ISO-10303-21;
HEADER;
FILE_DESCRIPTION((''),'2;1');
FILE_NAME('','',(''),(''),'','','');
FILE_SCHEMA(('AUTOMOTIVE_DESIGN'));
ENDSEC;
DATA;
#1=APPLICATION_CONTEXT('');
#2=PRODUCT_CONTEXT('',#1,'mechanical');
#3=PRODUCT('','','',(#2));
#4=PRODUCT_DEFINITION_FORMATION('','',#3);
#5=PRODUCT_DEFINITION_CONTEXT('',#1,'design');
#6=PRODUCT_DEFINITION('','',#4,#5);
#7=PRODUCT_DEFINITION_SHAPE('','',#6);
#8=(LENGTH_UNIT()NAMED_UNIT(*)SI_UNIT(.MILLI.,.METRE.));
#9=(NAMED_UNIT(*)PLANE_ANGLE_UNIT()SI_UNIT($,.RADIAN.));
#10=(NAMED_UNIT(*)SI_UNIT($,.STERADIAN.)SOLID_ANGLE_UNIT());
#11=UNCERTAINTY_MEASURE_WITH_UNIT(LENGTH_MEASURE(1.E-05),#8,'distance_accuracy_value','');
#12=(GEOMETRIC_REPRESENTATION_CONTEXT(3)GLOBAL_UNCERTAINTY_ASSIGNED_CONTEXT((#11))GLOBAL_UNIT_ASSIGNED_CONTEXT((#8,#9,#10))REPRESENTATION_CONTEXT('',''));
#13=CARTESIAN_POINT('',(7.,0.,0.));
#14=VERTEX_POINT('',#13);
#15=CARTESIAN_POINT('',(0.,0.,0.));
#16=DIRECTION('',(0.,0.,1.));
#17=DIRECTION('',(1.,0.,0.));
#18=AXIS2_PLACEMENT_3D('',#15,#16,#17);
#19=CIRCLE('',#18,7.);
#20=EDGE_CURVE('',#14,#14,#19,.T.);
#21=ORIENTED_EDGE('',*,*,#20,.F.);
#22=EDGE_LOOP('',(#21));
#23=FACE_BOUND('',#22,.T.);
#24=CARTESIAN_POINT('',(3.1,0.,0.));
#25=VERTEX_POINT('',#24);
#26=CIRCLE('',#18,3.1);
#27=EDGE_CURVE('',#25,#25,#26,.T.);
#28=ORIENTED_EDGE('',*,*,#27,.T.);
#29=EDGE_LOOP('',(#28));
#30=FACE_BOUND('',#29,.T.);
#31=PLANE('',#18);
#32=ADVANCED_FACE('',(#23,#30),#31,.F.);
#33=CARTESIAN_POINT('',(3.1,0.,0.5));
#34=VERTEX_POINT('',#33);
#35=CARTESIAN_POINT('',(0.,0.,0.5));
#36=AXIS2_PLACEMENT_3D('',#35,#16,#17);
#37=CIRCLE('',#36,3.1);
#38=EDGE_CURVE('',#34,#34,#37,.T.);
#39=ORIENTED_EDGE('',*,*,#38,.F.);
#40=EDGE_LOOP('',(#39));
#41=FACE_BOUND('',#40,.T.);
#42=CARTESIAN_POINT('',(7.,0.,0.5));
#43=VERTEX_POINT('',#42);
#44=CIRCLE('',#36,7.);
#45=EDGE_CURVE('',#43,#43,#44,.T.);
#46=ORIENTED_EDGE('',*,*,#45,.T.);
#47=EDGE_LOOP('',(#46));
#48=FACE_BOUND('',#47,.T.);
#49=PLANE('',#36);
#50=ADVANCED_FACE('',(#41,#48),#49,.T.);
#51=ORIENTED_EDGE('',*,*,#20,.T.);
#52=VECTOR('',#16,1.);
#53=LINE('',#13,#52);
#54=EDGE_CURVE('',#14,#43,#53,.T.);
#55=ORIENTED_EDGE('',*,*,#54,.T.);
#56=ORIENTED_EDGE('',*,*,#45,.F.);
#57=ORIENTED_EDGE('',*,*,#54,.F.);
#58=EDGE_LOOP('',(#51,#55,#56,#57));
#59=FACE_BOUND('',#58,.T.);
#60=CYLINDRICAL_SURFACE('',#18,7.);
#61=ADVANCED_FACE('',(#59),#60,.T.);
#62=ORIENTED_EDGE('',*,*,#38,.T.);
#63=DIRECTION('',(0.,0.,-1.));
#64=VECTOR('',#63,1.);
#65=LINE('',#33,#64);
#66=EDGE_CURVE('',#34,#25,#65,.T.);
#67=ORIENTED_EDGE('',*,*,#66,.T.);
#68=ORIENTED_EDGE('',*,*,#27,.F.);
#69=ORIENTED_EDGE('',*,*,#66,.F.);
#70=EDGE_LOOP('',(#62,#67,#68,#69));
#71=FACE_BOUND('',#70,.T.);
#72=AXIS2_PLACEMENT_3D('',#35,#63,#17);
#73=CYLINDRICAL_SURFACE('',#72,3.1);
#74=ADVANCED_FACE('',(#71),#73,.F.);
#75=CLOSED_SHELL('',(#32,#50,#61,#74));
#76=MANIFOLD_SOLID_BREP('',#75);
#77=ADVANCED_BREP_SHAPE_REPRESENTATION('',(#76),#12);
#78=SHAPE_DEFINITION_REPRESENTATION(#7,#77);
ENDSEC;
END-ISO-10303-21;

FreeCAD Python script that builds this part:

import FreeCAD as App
import Part
import Sketcher
Q = App.Units.Quantity


def add_polygon(sketch, points):
    """Adds a closed chain of lines whose ends are joined by coincident constraints."""
    first, n = sketch.GeometryCount, len(points)
    for a, b in zip(points, points[1:] + points[:1]):
        sketch.addGeometry(Part.LineSegment(App.Vector(*a, 0), App.Vector(*b, 0)), False)
    for i in range(n):
        sketch.addConstraint(Sketcher.Constraint("Coincident", first + i, 2, first + (i + 1) % n, 1))

doc = App.newDocument("Part")
body = doc.addObject("PartDesign::Body", "Body")

sketch1 = body.newObject("Sketcher::SketchObject", "Sketch")
sketch1.AttachmentSupport = (doc.getObject("XZ_Plane"), [""])
sketch1.MapMode = "FlatFace"
add_polygon(sketch1, [(3.1, 0), (3.1, 0.5), (7, 0.5), (7, 0)])
sketch1.addConstraint(Sketcher.Constraint("Vertical", 0))
sketch1.addConstraint(Sketcher.Constraint("Horizontal", 1))
sketch1.addConstraint(Sketcher.Constraint("Vertical", 2))
sketch1.addConstraint(Sketcher.Constraint("Horizontal", 3))
sketch1.addConstraint(Sketcher.Constraint("PointOnObject", 2, 2, -1))
sketch1.addConstraint(Sketcher.Constraint("DistanceY", 0, 1, 0, 2, Q("0.5 mm")))
sketch1.addConstraint(Sketcher.Constraint("DistanceX", 1, 1, 1, 2, Q("3.9 mm")))
sketch1.addConstraint(Sketcher.Constraint("DistanceX", -1, 1, 1, 2, Q("7 mm")))
revolution = body.newObject("PartDesign::Revolution", "Revolution")
revolution.Profile = sketch1
revolution.ReferenceAxis = (sketch1, ["V_Axis"])
revolution.Angle = 360

doc.recompute()
